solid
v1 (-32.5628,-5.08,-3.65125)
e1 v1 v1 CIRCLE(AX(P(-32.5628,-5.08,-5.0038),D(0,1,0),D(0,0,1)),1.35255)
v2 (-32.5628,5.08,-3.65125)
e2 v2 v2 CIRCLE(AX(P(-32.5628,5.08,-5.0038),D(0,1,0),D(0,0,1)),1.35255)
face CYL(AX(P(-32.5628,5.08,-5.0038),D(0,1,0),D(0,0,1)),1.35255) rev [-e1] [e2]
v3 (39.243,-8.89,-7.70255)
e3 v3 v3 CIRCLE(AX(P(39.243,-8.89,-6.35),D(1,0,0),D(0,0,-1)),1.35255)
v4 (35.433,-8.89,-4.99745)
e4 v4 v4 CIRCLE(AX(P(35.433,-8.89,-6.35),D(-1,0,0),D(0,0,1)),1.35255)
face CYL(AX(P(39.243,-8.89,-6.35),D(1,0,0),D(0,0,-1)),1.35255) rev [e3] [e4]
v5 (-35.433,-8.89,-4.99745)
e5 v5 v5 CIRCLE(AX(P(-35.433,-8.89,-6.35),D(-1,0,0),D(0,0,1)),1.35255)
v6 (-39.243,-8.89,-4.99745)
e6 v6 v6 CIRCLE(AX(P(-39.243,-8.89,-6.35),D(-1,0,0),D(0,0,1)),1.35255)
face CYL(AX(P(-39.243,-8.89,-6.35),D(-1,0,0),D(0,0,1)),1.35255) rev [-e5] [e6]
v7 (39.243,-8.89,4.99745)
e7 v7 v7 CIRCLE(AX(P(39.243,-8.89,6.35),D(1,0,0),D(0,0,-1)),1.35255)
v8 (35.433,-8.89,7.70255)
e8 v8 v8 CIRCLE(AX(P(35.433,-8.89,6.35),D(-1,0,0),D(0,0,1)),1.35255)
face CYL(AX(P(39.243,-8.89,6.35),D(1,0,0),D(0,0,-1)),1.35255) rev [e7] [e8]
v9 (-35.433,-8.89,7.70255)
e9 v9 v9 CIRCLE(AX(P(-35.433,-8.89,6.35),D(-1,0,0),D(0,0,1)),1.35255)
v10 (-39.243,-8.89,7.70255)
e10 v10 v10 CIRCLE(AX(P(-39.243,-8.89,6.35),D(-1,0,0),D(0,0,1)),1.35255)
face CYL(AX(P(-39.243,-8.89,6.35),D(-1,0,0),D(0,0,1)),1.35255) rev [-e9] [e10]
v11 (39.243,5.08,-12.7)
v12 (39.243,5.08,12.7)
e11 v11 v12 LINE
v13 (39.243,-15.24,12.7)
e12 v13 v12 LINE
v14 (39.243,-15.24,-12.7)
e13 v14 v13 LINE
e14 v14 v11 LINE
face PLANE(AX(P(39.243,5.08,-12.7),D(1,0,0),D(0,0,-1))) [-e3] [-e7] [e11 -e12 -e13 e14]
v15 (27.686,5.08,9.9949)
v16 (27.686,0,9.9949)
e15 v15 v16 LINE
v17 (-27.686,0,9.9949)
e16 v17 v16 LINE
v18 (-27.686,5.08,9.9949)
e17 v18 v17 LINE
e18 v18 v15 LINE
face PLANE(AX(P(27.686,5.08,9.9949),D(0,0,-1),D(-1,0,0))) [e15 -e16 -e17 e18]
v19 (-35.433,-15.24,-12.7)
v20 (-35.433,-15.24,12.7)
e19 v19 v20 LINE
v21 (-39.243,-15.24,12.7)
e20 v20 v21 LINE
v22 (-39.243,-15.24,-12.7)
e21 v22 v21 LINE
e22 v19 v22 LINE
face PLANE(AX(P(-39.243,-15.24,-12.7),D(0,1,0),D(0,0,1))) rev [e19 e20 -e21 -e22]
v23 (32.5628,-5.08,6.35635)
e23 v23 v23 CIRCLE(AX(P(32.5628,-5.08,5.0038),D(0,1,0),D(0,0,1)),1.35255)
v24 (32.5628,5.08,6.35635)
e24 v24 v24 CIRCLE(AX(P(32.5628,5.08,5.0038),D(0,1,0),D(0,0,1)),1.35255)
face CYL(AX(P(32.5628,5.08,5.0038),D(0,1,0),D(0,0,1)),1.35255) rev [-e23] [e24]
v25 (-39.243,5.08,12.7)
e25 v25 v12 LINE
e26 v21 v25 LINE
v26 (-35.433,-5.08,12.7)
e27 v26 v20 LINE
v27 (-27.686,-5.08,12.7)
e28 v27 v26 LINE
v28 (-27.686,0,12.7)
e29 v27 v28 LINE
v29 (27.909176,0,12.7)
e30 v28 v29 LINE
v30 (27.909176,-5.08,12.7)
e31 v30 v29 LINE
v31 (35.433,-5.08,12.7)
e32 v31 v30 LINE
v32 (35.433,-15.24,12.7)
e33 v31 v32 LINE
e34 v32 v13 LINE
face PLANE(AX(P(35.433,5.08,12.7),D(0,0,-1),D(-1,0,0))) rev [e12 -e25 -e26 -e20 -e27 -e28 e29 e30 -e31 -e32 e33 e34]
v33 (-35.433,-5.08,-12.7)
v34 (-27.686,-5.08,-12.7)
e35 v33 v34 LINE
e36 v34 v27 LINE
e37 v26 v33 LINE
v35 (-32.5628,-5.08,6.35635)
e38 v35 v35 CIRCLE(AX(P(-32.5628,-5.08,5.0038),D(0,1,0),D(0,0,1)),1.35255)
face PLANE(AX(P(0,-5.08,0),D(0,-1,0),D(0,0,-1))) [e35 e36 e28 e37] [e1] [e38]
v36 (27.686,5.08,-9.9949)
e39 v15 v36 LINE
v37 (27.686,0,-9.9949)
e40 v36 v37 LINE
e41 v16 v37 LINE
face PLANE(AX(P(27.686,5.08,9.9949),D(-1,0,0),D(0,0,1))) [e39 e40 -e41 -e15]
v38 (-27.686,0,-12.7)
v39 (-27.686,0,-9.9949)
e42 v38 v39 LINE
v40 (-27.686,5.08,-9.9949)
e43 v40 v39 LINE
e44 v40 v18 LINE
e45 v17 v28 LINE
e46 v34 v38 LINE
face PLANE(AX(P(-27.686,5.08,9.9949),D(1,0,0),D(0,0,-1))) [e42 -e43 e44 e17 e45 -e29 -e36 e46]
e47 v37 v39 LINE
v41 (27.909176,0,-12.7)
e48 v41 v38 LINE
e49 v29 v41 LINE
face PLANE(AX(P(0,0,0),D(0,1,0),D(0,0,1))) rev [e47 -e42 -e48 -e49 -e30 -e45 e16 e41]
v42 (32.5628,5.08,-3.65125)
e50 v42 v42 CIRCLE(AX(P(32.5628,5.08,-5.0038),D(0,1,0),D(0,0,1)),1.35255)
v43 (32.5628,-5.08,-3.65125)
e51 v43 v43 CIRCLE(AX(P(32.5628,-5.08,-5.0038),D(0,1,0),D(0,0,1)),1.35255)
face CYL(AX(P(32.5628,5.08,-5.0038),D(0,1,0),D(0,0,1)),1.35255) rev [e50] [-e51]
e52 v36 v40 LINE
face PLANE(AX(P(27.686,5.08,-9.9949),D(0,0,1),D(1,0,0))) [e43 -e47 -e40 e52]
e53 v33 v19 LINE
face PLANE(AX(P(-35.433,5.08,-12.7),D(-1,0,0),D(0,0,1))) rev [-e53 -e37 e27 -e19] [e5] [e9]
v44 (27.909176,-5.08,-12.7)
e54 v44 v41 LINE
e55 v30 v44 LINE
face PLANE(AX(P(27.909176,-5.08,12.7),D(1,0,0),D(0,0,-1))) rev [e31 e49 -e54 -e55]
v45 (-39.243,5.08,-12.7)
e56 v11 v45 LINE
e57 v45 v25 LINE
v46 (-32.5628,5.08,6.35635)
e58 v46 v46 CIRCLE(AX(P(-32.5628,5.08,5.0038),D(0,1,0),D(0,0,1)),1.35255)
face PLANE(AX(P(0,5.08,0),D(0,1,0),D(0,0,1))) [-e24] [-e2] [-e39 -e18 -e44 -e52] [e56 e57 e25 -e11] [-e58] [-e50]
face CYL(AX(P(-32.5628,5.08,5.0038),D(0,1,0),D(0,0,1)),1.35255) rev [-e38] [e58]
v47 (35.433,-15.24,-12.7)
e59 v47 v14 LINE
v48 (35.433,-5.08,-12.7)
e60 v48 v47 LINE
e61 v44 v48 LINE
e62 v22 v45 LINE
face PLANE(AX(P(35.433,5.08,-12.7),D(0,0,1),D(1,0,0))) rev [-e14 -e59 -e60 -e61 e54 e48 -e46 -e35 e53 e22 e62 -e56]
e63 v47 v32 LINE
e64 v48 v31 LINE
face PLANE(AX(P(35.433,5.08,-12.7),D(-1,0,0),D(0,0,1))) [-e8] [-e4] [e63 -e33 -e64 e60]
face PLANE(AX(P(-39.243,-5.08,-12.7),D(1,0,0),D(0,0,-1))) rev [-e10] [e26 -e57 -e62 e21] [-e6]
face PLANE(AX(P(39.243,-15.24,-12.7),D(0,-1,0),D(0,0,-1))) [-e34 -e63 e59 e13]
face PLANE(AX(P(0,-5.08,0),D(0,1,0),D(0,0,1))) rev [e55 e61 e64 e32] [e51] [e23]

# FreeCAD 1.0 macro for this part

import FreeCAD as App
import Part
import Sketcher

V = App.Vector
Q = App.Units.Quantity


def add_polygon(sketch, points):
    """Adds a closed chain of lines whose ends are joined by coincident constraints."""
    first, n = sketch.GeometryCount, len(points)
    for a, b in zip(points, points[1:] + points[:1]):
        sketch.addGeometry(Part.LineSegment(App.Vector(*a, 0), App.Vector(*b, 0)), False)
    for i in range(n):
        sketch.addConstraint(Sketcher.Constraint("Coincident", first + i, 2, first + (i + 1) % n, 1))

doc = App.newDocument("Part")
body = doc.addObject("PartDesign::Body", "Body")

sketch1 = body.newObject("Sketcher::SketchObject", "Sketch")
sketch1.AttachmentSupport = (doc.getObject("XZ_Plane"), [""])
sketch1.MapMode = "FlatFace"
add_polygon(sketch1, [(-35, -13), (-35, 13), (35, 13), (35, -13)])
add_polygon(sketch1, [(28, 10), (-28, 10), (-28, -10), (28, -10)])
sketch1.addConstraint([
    Sketcher.Constraint("Vertical", 0),
    Sketcher.Constraint("Horizontal", 1),
    Sketcher.Constraint("Vertical", 2),
    Sketcher.Constraint("Horizontal", 3),
    Sketcher.Constraint("Horizontal", 4),
    Sketcher.Constraint("Vertical", 5),
    Sketcher.Constraint("Horizontal", 6),
    Sketcher.Constraint("Vertical", 7),
    Sketcher.Constraint("Symmetric", 0, 2, 2, 2, -1, 1),
    Sketcher.Constraint("Symmetric", 4, 2, 6, 2, -1, 1),
    Sketcher.Constraint("DistanceY", 0, 1, 0, 2, Q("1 in")),
    Sketcher.Constraint("DistanceX", 1, 1, 1, 2, Q("2.79 in")),
    Sketcher.Constraint("DistanceX", 4, 2, 4, 1, Q("2.18 in")),
    Sketcher.Constraint("DistanceY", 5, 2, 5, 1, Q("0.787 in")),
])
pad1 = body.newObject("PartDesign::Pad", "Pad")
pad1.Profile = sketch1
pad1.Length = Q("0.2 in")
pad1.Reversed = True

sketch2 = body.newObject("Sketcher::SketchObject", "Sketch001")
sketch2.AttachmentSupport = (doc.getObject("XZ_Plane"), [""])
sketch2.MapMode = "FlatFace"
add_polygon(sketch2, [(-35, 13), (-35, -13), (-28, -13), (-28, 13)])
add_polygon(sketch2, [(28, 13), (28, -13), (35, -13), (35, 13)])
sketch2.addConstraint([
    Sketcher.Constraint("Vertical", 0),
    Sketcher.Constraint("Horizontal", 1),
    Sketcher.Constraint("Vertical", 2),
    Sketcher.Constraint("Horizontal", 3),
    Sketcher.Constraint("Vertical", 4),
    Sketcher.Constraint("Horizontal", 5),
    Sketcher.Constraint("Vertical", 6),
    Sketcher.Constraint("Horizontal", 7),
    Sketcher.Constraint("Symmetric", 3, 2, 5, 2, -1, 1),
    Sketcher.Constraint("Horizontal", 1, 2, 4, 2),
    Sketcher.Constraint("Horizontal", 3, 2, 6, 2),
    Sketcher.Constraint("DistanceY", 0, 2, 0, 1, Q("1 in")),
    Sketcher.Constraint("DistanceX", 1, 1, 1, 2, Q("0.305 in")),
    Sketcher.Constraint("DistanceX", 1, 2, -1, 1, Q("1.09 in")),
    Sketcher.Constraint("DistanceX", 5, 1, 5, 2, 7.523824),
])
pad2 = body.newObject("PartDesign::Pad", "Pad001")
pad2.Profile = sketch2
pad2.Length = Q("0.2 in")

sketch3 = body.newObject("Sketcher::SketchObject", "Sketch002")
sketch3.AttachmentSupport = (doc.getObject("XY_Plane"), [""])
sketch3.MapMode = "FlatFace"
sketch3.AttachmentOffset = App.Placement(V(0, 0, 0.5 * 25.4), App.Rotation())
add_polygon(sketch3, [(35.4, 5.1), (35.4, -15.2), (39.2, -15.2), (39.2, 5.1)])
sketch3.addConstraint([
    Sketcher.Constraint("Vertical", 0),
    Sketcher.Constraint("Horizontal", 1),
    Sketcher.Constraint("Vertical", 2),
    Sketcher.Constraint("Horizontal", 3),
    Sketcher.Constraint("DistanceY", 0, 2, 0, 1, Q("0.8 in")),
    Sketcher.Constraint("DistanceX", 1, 1, 1, 2, Q("0.15 in")),
    Sketcher.Constraint("DistanceY", 0, 2, -1, 1, Q("0.6 in")),
    Sketcher.Constraint("DistanceX", -1, 1, 0, 2, Q("1.395 in")),
])
pad3 = body.newObject("PartDesign::Pad", "Pad002")
pad3.Profile = sketch3
pad3.Length = Q("1 in")
pad3.Reversed = True
doc.recompute()

mirrored = body.newObject("PartDesign::Mirrored", "Mirrored")
mirrored.Originals = [pad3]
mirrored.MirrorPlane = (doc.getObject("YZ_Plane"), [""])
body.Tip = mirrored

sketch4 = body.newObject("Sketcher::SketchObject", "Sketch003")
sketch4.AttachmentSupport = (doc.getObject("XZ_Plane"), [""])
sketch4.MapMode = "FlatFace"
sketch4.AttachmentOffset = App.Placement(V(0, 0, -0.2 * 25.4), App.Rotation())
sketch4.addGeometry([
    Part.Circle(V(-32.6, -5, 0), V(0, 0, 1), 1.4),
    Part.Circle(V(-32.6, 5, 0), V(0, 0, 1), 1.4),
    Part.Circle(V(32.6, -5, 0), V(0, 0, 1), 1.4),
    Part.Circle(V(32.6, 5, 0), V(0, 0, 1), 1.4),
], False)
sketch4.addConstraint([
    Sketcher.Constraint("Equal", 0, 1),
    Sketcher.Constraint("Equal", 1, 2),
    Sketcher.Constraint("Equal", 2, 3),
    Sketcher.Constraint("Symmetric", 1, 3, 2, 3, -1, 1),
    Sketcher.Constraint("Symmetric", 0, 3, 3, 3, -1, 1),
    Sketcher.Constraint("Symmetric", 0, 3, 2, 3, -2),
    Sketcher.Constraint("Diameter", 0, Q("0.1065 in")),
    Sketcher.Constraint("DistanceX", 0, 3, -1, 1, Q("1.282 in")),
    Sketcher.Constraint("DistanceY", 0, 3, -1, 1, Q("0.197 in")),
])
doc.recompute()
hole = body.newObject("PartDesign::Hole", "Hole")
hole.Profile = sketch4
hole.ThreadType = "None"
hole.Diameter = Q("0.1065 in")
hole.DepthType = "Dimension"
hole.Depth = Q("0.4 in")
hole.DrillPoint = "Angled"
hole.DrillPointAngle = 118
hole.Reversed = True

sketch5 = body.newObject("Sketcher::SketchObject", "Sketch004")
sketch5.AttachmentSupport = (doc.getObject("XZ_Plane"), [""])
sketch5.MapMode = "FlatFace"
sketch5.AttachmentOffset = App.Placement(V(0, 0, 0.35 * 25.4), App.Rotation())
add_polygon(sketch5, [(-28.3, -6.3), (-39.2, -6.3), (-39.2, -5), (-29.1, -5)])
sketch5.addGeometry(Part.LineSegment(V(-39.2, -6.3, 0), V(-28.3, -6.3, 0)), True)
sketch5.addConstraint([
    Sketcher.Constraint("Horizontal", 0),
    Sketcher.Constraint("Vertical", 1),
    Sketcher.Constraint("Horizontal", 2),
    Sketcher.Constraint("Horizontal", 4),
    Sketcher.Constraint("Coincident", 4, 1, 0, 2),
    Sketcher.Constraint("Equal", 0, 4),
    Sketcher.Constraint("DistanceX", 2, 1, 2, 2, Q("0.4 in")),
    Sketcher.Constraint("Angle", 3, Q("-59 deg")),
    Sketcher.Constraint("DistanceY", 0, 2, -1, 1, Q("0.25 in")),
    Sketcher.Constraint("DistanceX", 0, 2, -1, 1, Q("1.545 in")),
    Sketcher.Constraint("DistanceY", 1, 1, 1, 2, 1.35255),
])
groove = body.newObject("PartDesign::Groove", "Groove")
groove.Profile = sketch5
groove.ReferenceAxis = (sketch5, ["Axis0"])
groove.Angle = 360
doc.recompute()

linearpattern = body.newObject("PartDesign::LinearPattern", "LinearPattern")
linearpattern.Originals = [groove]
linearpattern.Direction = (doc.getObject("Z_Axis"), [""])
linearpattern.Mode = "offset"
linearpattern.Offset = Q("0.5 in")
linearpattern.Occurrences = 2
body.Tip = linearpattern
doc.recompute()

mirrored2 = body.newObject("PartDesign::Mirrored", "Mirrored001")
mirrored2.Originals = [groove]
mirrored2.MirrorPlane = (doc.getObject("YZ_Plane"), [""])
body.Tip = mirrored2

sketch6 = body.newObject("Sketcher::SketchObject", "Sketch005")
sketch6.AttachmentSupport = (doc.getObject("XZ_Plane"), [""])
sketch6.MapMode = "FlatFace"
sketch6.AttachmentOffset = App.Placement(V(0, 0, 0.35 * 25.4), App.Rotation())
add_polygon(sketch6, [(39.2, 6.3), (28.3, 6.3), (29.1, 7.7), (39.2, 7.7)])
sketch6.addGeometry(Part.LineSegment(V(28.3, 6.3, 0), V(39.2, 6.3, 0)), True)
sketch6.addConstraint([
    Sketcher.Constraint("Horizontal", 0),
    Sketcher.Constraint("Horizontal", 2),
    Sketcher.Constraint("Vertical", 3),
    Sketcher.Constraint("Horizontal", 4),
    Sketcher.Constraint("Coincident", 4, 1, 0, 2),
    Sketcher.Constraint("Vertical", 2, 2, 4, 2),
    Sketcher.Constraint("DistanceX", 2, 1, 2, 2, Q("0.4 in")),
    Sketcher.Constraint("Angle", 1, Q("59 deg")),
    Sketcher.Constraint("DistanceY", -1, 1, 0, 2, Q("0.25 in")),
    Sketcher.Constraint("DistanceX", -1, 1, 1, 2, Q("1.145 in")),
    Sketcher.Constraint("DistanceY", 3, 2, 3, 1, 1.35255),
])
groove2 = body.newObject("PartDesign::Groove", "Groove001")
groove2.Profile = sketch6
groove2.ReferenceAxis = (sketch6, ["Axis0"])
groove2.Angle = 360

doc.recompute()
